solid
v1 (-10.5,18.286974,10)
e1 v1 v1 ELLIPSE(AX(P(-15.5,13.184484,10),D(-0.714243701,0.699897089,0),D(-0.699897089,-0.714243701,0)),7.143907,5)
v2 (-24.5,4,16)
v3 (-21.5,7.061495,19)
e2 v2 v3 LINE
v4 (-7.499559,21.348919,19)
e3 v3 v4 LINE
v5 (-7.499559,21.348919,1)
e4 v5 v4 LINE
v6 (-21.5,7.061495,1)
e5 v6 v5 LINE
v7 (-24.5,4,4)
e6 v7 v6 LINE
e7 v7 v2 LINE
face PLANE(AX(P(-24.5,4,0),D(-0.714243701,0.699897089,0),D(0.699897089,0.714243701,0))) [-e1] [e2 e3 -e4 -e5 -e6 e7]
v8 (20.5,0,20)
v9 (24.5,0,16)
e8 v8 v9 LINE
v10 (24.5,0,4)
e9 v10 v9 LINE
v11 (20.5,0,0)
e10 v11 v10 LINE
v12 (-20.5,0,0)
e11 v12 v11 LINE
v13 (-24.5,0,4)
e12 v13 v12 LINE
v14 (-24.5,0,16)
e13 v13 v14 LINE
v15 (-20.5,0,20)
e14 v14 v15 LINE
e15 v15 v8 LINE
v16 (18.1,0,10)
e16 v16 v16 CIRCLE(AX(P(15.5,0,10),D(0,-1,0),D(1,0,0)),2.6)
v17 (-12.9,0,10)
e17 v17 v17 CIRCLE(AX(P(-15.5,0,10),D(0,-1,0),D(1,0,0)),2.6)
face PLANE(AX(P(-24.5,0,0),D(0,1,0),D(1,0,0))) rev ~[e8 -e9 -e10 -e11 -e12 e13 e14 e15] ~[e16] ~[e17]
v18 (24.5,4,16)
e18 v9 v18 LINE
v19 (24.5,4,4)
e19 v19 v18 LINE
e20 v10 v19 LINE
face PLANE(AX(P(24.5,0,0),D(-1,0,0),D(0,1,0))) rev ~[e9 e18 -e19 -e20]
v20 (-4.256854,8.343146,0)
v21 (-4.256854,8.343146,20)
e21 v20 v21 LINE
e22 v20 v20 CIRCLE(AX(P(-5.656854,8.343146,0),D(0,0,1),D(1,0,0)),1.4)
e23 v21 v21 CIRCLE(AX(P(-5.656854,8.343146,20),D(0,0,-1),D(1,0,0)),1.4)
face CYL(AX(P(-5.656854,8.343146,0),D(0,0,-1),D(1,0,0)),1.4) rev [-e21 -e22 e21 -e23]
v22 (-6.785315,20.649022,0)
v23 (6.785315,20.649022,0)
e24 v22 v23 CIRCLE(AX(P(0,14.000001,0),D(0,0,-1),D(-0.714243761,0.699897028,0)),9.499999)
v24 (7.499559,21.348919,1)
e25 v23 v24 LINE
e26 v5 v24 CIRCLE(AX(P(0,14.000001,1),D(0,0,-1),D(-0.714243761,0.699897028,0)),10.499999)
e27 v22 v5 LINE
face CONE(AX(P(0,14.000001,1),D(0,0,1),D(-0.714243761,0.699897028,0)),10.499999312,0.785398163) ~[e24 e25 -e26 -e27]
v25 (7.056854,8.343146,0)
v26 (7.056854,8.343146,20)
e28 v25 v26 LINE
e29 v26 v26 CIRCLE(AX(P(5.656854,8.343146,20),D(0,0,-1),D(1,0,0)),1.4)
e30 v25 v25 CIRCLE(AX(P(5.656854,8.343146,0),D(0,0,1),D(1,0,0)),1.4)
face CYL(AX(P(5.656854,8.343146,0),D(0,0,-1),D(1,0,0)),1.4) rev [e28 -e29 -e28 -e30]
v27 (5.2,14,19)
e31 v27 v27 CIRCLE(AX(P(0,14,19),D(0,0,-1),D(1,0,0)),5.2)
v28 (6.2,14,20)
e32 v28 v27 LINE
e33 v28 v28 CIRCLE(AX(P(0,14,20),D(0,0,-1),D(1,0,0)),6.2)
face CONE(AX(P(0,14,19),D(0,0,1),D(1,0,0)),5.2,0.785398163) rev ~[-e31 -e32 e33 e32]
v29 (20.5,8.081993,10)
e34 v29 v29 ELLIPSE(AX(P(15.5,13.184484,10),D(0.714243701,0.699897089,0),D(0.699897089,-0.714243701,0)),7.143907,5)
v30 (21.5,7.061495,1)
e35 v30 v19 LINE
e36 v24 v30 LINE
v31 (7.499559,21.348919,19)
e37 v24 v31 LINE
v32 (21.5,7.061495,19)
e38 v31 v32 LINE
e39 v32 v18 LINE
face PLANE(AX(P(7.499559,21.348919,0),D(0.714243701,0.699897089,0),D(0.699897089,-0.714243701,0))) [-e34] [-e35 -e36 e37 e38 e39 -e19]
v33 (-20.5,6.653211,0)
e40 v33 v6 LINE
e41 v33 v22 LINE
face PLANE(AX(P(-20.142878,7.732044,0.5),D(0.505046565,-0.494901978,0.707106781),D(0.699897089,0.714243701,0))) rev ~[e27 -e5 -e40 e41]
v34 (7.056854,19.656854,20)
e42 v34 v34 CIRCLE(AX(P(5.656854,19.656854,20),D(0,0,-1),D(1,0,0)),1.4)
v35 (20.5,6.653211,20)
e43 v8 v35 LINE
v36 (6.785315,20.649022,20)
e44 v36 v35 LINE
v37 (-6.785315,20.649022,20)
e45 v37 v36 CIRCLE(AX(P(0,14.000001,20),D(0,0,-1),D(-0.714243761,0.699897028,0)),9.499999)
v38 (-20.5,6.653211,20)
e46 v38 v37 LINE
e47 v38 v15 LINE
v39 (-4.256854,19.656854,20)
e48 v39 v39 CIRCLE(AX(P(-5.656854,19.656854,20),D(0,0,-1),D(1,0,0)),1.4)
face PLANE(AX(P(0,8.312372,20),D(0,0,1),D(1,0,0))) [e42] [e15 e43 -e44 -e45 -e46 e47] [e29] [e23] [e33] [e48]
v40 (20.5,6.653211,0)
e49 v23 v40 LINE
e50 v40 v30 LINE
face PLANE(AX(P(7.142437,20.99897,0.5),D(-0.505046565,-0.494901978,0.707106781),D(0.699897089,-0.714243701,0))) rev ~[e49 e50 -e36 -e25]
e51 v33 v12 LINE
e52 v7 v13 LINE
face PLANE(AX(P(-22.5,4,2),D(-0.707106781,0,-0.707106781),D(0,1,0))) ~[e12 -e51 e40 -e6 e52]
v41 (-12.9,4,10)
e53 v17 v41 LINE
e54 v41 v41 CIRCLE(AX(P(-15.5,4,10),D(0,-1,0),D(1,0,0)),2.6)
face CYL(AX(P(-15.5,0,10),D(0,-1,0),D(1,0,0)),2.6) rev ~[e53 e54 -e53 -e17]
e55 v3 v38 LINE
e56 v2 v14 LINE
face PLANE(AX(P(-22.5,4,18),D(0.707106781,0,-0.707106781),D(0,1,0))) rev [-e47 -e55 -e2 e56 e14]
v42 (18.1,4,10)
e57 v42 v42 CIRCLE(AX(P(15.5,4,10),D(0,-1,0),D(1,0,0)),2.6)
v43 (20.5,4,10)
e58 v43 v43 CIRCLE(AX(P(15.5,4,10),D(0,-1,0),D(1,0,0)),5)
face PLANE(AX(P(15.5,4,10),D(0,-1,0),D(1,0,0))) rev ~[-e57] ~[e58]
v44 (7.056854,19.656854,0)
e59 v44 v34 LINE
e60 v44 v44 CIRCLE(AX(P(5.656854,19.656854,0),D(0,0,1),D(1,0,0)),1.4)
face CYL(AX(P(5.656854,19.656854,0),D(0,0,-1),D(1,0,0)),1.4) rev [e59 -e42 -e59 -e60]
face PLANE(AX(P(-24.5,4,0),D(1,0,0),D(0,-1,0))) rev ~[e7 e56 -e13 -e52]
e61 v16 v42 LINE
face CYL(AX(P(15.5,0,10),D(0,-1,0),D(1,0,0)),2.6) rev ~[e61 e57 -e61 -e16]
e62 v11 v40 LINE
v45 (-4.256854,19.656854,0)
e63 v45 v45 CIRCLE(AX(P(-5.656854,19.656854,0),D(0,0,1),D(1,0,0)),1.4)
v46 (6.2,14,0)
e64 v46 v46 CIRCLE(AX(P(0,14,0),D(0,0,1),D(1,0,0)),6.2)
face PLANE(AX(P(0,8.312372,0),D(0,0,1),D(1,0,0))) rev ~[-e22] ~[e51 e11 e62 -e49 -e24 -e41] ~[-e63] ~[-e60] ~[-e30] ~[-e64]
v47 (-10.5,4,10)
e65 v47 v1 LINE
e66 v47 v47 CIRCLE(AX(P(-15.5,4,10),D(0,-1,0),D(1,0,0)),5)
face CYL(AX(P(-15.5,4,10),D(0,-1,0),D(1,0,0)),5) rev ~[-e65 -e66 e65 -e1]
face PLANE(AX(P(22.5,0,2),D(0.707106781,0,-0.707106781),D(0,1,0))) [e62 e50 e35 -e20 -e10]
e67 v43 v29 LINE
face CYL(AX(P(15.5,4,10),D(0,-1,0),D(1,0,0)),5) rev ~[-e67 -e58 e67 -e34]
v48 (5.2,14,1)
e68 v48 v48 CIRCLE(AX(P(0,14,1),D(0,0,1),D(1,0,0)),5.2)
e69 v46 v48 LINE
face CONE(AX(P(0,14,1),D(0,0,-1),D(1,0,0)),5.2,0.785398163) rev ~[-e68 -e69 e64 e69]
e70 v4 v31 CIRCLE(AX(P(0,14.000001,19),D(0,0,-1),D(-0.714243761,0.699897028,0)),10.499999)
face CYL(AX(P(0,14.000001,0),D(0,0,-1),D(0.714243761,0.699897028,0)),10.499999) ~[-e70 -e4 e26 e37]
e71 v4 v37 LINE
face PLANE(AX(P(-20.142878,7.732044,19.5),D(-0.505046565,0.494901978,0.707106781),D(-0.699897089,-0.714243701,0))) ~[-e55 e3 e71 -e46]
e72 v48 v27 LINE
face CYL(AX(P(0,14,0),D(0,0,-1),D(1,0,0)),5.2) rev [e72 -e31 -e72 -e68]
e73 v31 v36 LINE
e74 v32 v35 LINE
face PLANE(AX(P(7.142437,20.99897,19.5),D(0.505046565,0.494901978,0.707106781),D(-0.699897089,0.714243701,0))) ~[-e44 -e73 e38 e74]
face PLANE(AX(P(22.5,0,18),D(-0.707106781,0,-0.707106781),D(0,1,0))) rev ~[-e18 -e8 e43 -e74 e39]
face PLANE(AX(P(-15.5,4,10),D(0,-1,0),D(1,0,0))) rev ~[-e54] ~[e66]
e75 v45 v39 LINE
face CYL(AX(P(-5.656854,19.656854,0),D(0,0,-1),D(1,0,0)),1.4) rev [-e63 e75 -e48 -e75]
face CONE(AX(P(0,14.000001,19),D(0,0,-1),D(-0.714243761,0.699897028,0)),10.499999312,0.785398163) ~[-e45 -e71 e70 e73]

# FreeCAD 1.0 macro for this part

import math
import FreeCAD as App
import Part
import Sketcher

V = App.Vector


def edges_at(feature, points):
    """Names of the edges that pass closest to the given points."""
    edges = feature.Shape.Edges
    near = lambda p: min(range(len(edges)), key=lambda i: edges[i].distToShape(Part.Vertex(*p))[0])
    return sorted({f"Edge{near(p) + 1}" for p in points})

doc = App.newDocument("Part")
body = doc.addObject("PartDesign::Body", "Body")

# Sketch on XY plane
sketch1 = body.newObject("Sketcher::SketchObject", "Sketch")
sketch1.AttachmentSupport = (doc.getObject("XY_Plane"), [""])
sketch1.MapMode = "FlatFace"
sketch1.addGeometry(Part.LineSegment(V(-24.5, 4, 0), V(-24.5, 0, 0)), False)
sketch1.addGeometry(Part.LineSegment(V(-24.5, 0, 0), V(24.5, 0, 0)), False)
sketch1.addGeometry(Part.LineSegment(V(24.5, 0, 0), V(24.5, 4, 0)), False)
sketch1.addGeometry(Part.LineSegment(V(24.5, 4, 0), V(7.5, 21.3, 0)), False)
sketch1.addGeometry(Part.ArcOfCircle(Part.Circle(V(0, 14, 0), V(0, 0, 1), 10.5), math.radians(44), math.radians(136)), False)
sketch1.addGeometry(Part.LineSegment(V(-7.5, 21.3, 0), V(-24.5, 4, 0)), False)
sketch1.addConstraint(Sketcher.Constraint("Coincident", 0, 2, 1, 1))
sketch1.addConstraint(Sketcher.Constraint("Coincident", 1, 2, 2, 1))
sketch1.addConstraint(Sketcher.Constraint("Coincident", 2, 2, 3, 1))
sketch1.addConstraint(Sketcher.Constraint("Tangent", 3, 2, 4, 1))
sketch1.addConstraint(Sketcher.Constraint("Tangent", 4, 2, 5, 1))
sketch1.addConstraint(Sketcher.Constraint("Coincident", 5, 2, 0, 1))
sketch1.addConstraint(Sketcher.Constraint("Vertical", 0))
sketch1.addConstraint(Sketcher.Constraint("Horizontal", 1))
sketch1.addConstraint(Sketcher.Constraint("Vertical", 2))
sketch1.addConstraint(Sketcher.Constraint("Symmetric", 0, 2, 1, 2, -1, 1))
sketch1.addConstraint(Sketcher.Constraint("Symmetric", 3, 2, 4, 2, -2))
sketch1.addConstraint(Sketcher.Constraint("Radius", 4, 10.499999))
sketch1.addConstraint(Sketcher.Constraint("DistanceX", 1, 1, 1, 2, 49.0))
sketch1.addConstraint(Sketcher.Constraint("DistanceY", 0, 2, 0, 1, 4.0))
sketch1.addConstraint(Sketcher.Constraint("DistanceY", -1, 1, 4, 3, 14.000001))
pad1 = body.newObject("PartDesign::Pad", "Pad")
pad1.Profile = sketch1
pad1.Length = 20

# Sketch on XZ plane
sketch2 = body.newObject("Sketcher::SketchObject", "Sketch001")
sketch2.AttachmentSupport = (doc.getObject("XZ_Plane"), [""])
sketch2.MapMode = "FlatFace"
sketch2.addGeometry(Part.Circle(V(-15.5, 10, 0), V(0, 0, 1), 2.6), False)
sketch2.addGeometry(Part.Circle(V(15.5, 10, 0), V(0, 0, 1), 2.6), False)
sketch2.addConstraint(Sketcher.Constraint("Equal", 0, 1))
sketch2.addConstraint(Sketcher.Constraint("Symmetric", 0, 3, 1, 3, -2))
sketch2.addConstraint(Sketcher.Constraint("Diameter", 0, 5.2))
sketch2.addConstraint(Sketcher.Constraint("DistanceY", -1, 1, 0, 3, 10.0))
sketch2.addConstraint(Sketcher.Constraint("DistanceX", 0, 3, 1, 3, 31.0))
pocket1 = body.newObject("PartDesign::Pocket", "Pocket")
pocket1.Profile = sketch2
pocket1.Type = "ThroughAll"

# Sketch on XZ plane
sketch3 = body.newObject("Sketcher::SketchObject", "Sketch002")
sketch3.AttachmentSupport = (doc.getObject("XZ_Plane"), [""])
sketch3.MapMode = "FlatFace"
sketch3.AttachmentOffset = App.Placement(V(0, 0, -4), App.Rotation())
sketch3.addGeometry(Part.Circle(V(-16, 10, 0), V(0, 0, 1), 5), False)
sketch3.addGeometry(Part.Circle(V(16, 10, 0), V(0, 0, 1), 5), False)
sketch3.addConstraint(Sketcher.Constraint("Equal", 0, 1))
sketch3.addConstraint(Sketcher.Constraint("Symmetric", 0, 3, 1, 3, -2))
sketch3.addConstraint(Sketcher.Constraint("Diameter", 0, 10.0))
sketch3.addConstraint(Sketcher.Constraint("DistanceY", -1, 1, 0, 3, 10.0))
sketch3.addConstraint(Sketcher.Constraint("DistanceX", 0, 3, 1, 3, 31.0))
pocket2 = body.newObject("PartDesign::Pocket", "Pocket001")
pocket2.Profile = sketch3
pocket2.Type = "ThroughAll"

# Sketch on XY plane
sketch4 = body.newObject("Sketcher::SketchObject", "Sketch003")
sketch4.AttachmentSupport = (doc.getObject("XY_Plane"), [""])
sketch4.MapMode = "FlatFace"
sketch4.addGeometry(Part.Circle(V(0, 14, 0), V(0, 0, 1), 5.2), False)
sketch4.addGeometry(Part.Circle(V(-5.7, 19.7, 0), V(0, 0, 1), 1.4), False)
sketch4.addGeometry(Part.Circle(V(5.7, 19.7, 0), V(0, 0, 1), 1.4), False)
sketch4.addGeometry(Part.Circle(V(5.7, 8.3, 0), V(0, 0, 1), 1.4), False)
sketch4.addGeometry(Part.Circle(V(-5.7, 8.3, 0), V(0, 0, 1), 1.4), False)
sketch4.addConstraint(Sketcher.Constraint("Equal", 1, 2))
sketch4.addConstraint(Sketcher.Constraint("Equal", 2, 3))
sketch4.addConstraint(Sketcher.Constraint("Equal", 3, 4))
sketch4.addConstraint(Sketcher.Constraint("Symmetric", 1, 3, 2, 3, -2))
sketch4.addConstraint(Sketcher.Constraint("Symmetric", 3, 3, 4, 3, -2))
sketch4.addConstraint(Sketcher.Constraint("PointOnObject", 0, 3, -2))
sketch4.addConstraint(Sketcher.Constraint("Vertical", 2, 3, 3, 3))
sketch4.addConstraint(Sketcher.Constraint("Diameter", 0, 10.4))
sketch4.addConstraint(Sketcher.Constraint("Diameter", 1, 2.8))
sketch4.addConstraint(Sketcher.Constraint("DistanceY", -1, 1, 0, 3, 14.0))
sketch4.addConstraint(Sketcher.Constraint("DistanceX", 1, 3, -1, 1, 5.656854))
sketch4.addConstraint(Sketcher.Constraint("DistanceY", -1, 1, 1, 3, 19.656854))
sketch4.addConstraint(Sketcher.Constraint("DistanceY", -1, 1, 3, 3, 8.343146))
pocket3 = body.newObject("PartDesign::Pocket", "Pocket002")
pocket3.Profile = sketch4
pocket3.Type = "ThroughAll"
pocket3.Reversed = True
doc.recompute()

chamfer = body.newObject("PartDesign::Chamfer", "Chamfer")
chamfer.Base = (pocket3, edges_at(pocket3, [
    (24.5, 2, 20),
    (24.5, 2, 0),
    (-24.5, 2, 20),
    (-24.5, 2, 0),
]))
chamfer.Size = 4
doc.recompute()

chamfer2 = body.newObject("PartDesign::Chamfer", "Chamfer001")
chamfer2.Base = (chamfer, edges_at(chamfer, [(-5.2, 14, 20), (-5.2, 14, 0)]))
chamfer2.Size = 1
doc.recompute()

chamfer3 = body.newObject("PartDesign::Chamfer", "Chamfer002")
chamfer3.Base = (chamfer2, edges_at(chamfer2, [
    (14, 14.715, 20),
    (0, 24.5, 20),
    (-14, 14.715, 20),
    (-14, 14.715, 0),
    (0, 24.5, 0),
    (14, 14.715, 0),
]))
chamfer3.Size = 1

doc.recompute()
